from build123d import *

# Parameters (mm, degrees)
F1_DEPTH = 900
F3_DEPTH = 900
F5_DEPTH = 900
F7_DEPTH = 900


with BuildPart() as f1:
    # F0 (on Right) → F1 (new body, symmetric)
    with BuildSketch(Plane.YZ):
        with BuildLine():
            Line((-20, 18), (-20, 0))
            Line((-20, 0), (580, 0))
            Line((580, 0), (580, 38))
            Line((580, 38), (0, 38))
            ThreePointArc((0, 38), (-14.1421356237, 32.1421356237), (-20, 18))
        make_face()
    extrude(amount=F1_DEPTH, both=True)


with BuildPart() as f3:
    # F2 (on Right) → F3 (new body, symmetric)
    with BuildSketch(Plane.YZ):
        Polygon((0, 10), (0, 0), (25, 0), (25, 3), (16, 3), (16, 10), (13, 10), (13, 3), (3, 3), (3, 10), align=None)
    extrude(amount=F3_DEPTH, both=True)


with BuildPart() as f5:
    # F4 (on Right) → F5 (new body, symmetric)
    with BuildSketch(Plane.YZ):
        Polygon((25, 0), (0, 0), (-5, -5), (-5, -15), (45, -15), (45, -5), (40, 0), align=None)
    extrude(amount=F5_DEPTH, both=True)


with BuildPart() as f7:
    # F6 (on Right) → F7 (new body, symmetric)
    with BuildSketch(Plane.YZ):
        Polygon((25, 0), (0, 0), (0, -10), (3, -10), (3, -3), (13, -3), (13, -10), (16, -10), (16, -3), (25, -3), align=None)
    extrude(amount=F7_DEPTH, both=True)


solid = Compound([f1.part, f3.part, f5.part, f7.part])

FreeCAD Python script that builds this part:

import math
import FreeCAD as App
import Part
import Sketcher
from FreeCAD import Vector
Q = App.Units.Quantity

doc = App.newDocument("Part")
params = doc.addObject("Spreadsheet::Sheet", "Params")
for row, (alias, value) in enumerate([
    ("sketch1_radius", "20 mm"),
    ("sketch1_width", "600 mm"),
    ("sketch1_height", "18 mm"),
    ("pad1_length", "1800 mm"),
    ("sketch2_width", "25 mm"),
    ("sketch2_width2", "9 mm"),
    ("sketch2_width3", "3 mm"),
    ("pad2_length", "1800 mm"),
    ("sketch3_width", "50 mm"),
    ("sketch3_width2", "40 mm"),
    ("sketch3_height", "10 mm"),
    ("pad3_length", "1800 mm"),
    ("sketch4_width", "25 mm"),
    ("sketch4_width2", "3 mm"),
    ("sketch4_width3", "10 mm"),
    ("pad4_length", "1800 mm"),
], start=1):
    params.set(f"A{row}", alias)
    params.set(f"B{row}", "=" + value)
    params.setAlias(f"B{row}", alias)

body = doc.addObject("PartDesign::Body", "Body")

sketch1 = body.newObject("Sketcher::SketchObject", "Sketch")
sketch1.AttachmentSupport = (doc.getObject("YZ_Plane"), [""])
sketch1.MapMode = "FlatFace"
sketch1.addGeometry(Part.LineSegment(Vector(-20, 18, 0), Vector(-20, 0, 0)), False)
sketch1.addGeometry(Part.LineSegment(Vector(-20, 0, 0), Vector(580, 0, 0)), False)
sketch1.addGeometry(Part.LineSegment(Vector(580, 0, 0), Vector(580, 38, 0)), False)
sketch1.addGeometry(Part.LineSegment(Vector(580, 38, 0), Vector(0, 38, 0)), False)
sketch1.addGeometry(Part.ArcOfCircle(Part.Circle(Vector(0, 18, 0), Vector(0, 0, 1), 20), math.radians(90), math.radians(180)), False)
sketch1.addConstraint(Sketcher.Constraint("Coincident", 0, 2, 1, 1))
sketch1.addConstraint(Sketcher.Constraint("Coincident", 1, 2, 2, 1))
sketch1.addConstraint(Sketcher.Constraint("Coincident", 2, 2, 3, 1))
sketch1.addConstraint(Sketcher.Constraint("Tangent", 3, 2, 4, 1))
sketch1.addConstraint(Sketcher.Constraint("Tangent", 4, 2, 0, 1))
sketch1.addConstraint(Sketcher.Constraint("Vertical", 0))
sketch1.addConstraint(Sketcher.Constraint("Horizontal", 1))
sketch1.addConstraint(Sketcher.Constraint("Vertical", 2))
sketch1.addConstraint(Sketcher.Constraint("Horizontal", 3))
sketch1.addConstraint(Sketcher.Constraint("PointOnObject", 4, 3, -2))
sketch1.addConstraint(Sketcher.Constraint("PointOnObject", 0, 2, -1))
sketch1.addConstraint(Sketcher.Constraint("Radius", 4, Q("20 mm")))
sketch1.addConstraint(Sketcher.Constraint("DistanceX", 1, 1, 1, 2, Q("600 mm")))
sketch1.addConstraint(Sketcher.Constraint("DistanceY", 0, 2, 0, 1, Q("18 mm")))
sketch1.setExpression("Constraints[11]", "Params.sketch1_radius")
sketch1.setExpression("Constraints[12]", "Params.sketch1_width")
sketch1.setExpression("Constraints[13]", "Params.sketch1_height")
pad1 = body.newObject("PartDesign::Pad", "Pad")
pad1.Profile = sketch1
pad1.setExpression("Length", "Params.pad1_length")
pad1.Midplane = True
body2 = doc.addObject("PartDesign::Body", "Body001")

sketch2 = body2.newObject("Sketcher::SketchObject", "Sketch001")
sketch2.AttachmentSupport = (doc.getObject("YZ_Plane001"), [""])
sketch2.MapMode = "FlatFace"
sketch2.addGeometry(Part.LineSegment(Vector(0, 10, 0), Vector(0, 0, 0)), False)
sketch2.addGeometry(Part.LineSegment(Vector(0, 0, 0), Vector(25, 0, 0)), False)
sketch2.addGeometry(Part.LineSegment(Vector(25, 0, 0), Vector(25, 3, 0)), False)
sketch2.addGeometry(Part.LineSegment(Vector(25, 3, 0), Vector(16, 3, 0)), False)
sketch2.addGeometry(Part.LineSegment(Vector(16, 3, 0), Vector(16, 10, 0)), False)
sketch2.addGeometry(Part.LineSegment(Vector(16, 10, 0), Vector(13, 10, 0)), False)
sketch2.addGeometry(Part.LineSegment(Vector(13, 10, 0), Vector(13, 3, 0)), False)
sketch2.addGeometry(Part.LineSegment(Vector(13, 3, 0), Vector(3, 3, 0)), False)
sketch2.addGeometry(Part.LineSegment(Vector(3, 3, 0), Vector(3, 10, 0)), False)
sketch2.addGeometry(Part.LineSegment(Vector(3, 10, 0), Vector(0, 10, 0)), False)
sketch2.addConstraint(Sketcher.Constraint("Coincident", 0, 2, 1, 1))
sketch2.addConstraint(Sketcher.Constraint("Coincident", 1, 2, 2, 1))
sketch2.addConstraint(Sketcher.Constraint("Coincident", 2, 2, 3, 1))
sketch2.addConstraint(Sketcher.Constraint("Coincident", 3, 2, 4, 1))
sketch2.addConstraint(Sketcher.Constraint("Coincident", 4, 2, 5, 1))
sketch2.addConstraint(Sketcher.Constraint("Coincident", 5, 2, 6, 1))
sketch2.addConstraint(Sketcher.Constraint("Coincident", 6, 2, 7, 1))
sketch2.addConstraint(Sketcher.Constraint("Coincident", 7, 2, 8, 1))
sketch2.addConstraint(Sketcher.Constraint("Coincident", 8, 2, 9, 1))
sketch2.addConstraint(Sketcher.Constraint("Coincident", 9, 2, 0, 1))
sketch2.addConstraint(Sketcher.Constraint("Vertical", 0))
sketch2.addConstraint(Sketcher.Constraint("Horizontal", 1))
sketch2.addConstraint(Sketcher.Constraint("Vertical", 2))
sketch2.addConstraint(Sketcher.Constraint("Horizontal", 3))
sketch2.addConstraint(Sketcher.Constraint("Vertical", 4))
sketch2.addConstraint(Sketcher.Constraint("Horizontal", 5))
sketch2.addConstraint(Sketcher.Constraint("Vertical", 6))
sketch2.addConstraint(Sketcher.Constraint("Horizontal", 7))
sketch2.addConstraint(Sketcher.Constraint("Vertical", 8))
sketch2.addConstraint(Sketcher.Constraint("Horizontal", 9))
sketch2.addConstraint(Sketcher.Constraint("Coincident", 0, 2, -1, 1))
sketch2.addConstraint(Sketcher.Constraint("Horizontal", 3, 2, 6, 2))
sketch2.addConstraint(Sketcher.Constraint("Horizontal", 5, 2, 8, 2))
sketch2.addConstraint(Sketcher.Constraint("Equal", 5, 9))
sketch2.addConstraint(Sketcher.Constraint("Equal", 7, 0))
sketch2.addConstraint(Sketcher.Constraint("Equal", 9, 2))
sketch2.addConstraint(Sketcher.Constraint("DistanceX", 1, 1, 1, 2, Q("25 mm")))
sketch2.addConstraint(Sketcher.Constraint("DistanceX", 3, 2, 3, 1, Q("9 mm")))
sketch2.addConstraint(Sketcher.Constraint("DistanceX", 5, 2, 5, 1, Q("3 mm")))
sketch2.setExpression("Constraints[26]", "Params.sketch2_width")
sketch2.setExpression("Constraints[27]", "Params.sketch2_width2")
sketch2.setExpression("Constraints[28]", "Params.sketch2_width3")
pad2 = body2.newObject("PartDesign::Pad", "Pad001")
pad2.Profile = sketch2
pad2.setExpression("Length", "Params.pad2_length")
pad2.Midplane = True
body3 = doc.addObject("PartDesign::Body", "Body002")

sketch3 = body3.newObject("Sketcher::SketchObject", "Sketch002")
sketch3.AttachmentSupport = (doc.getObject("YZ_Plane002"), [""])
sketch3.MapMode = "FlatFace"
sketch3.addGeometry(Part.LineSegment(Vector(0, 0, 0), Vector(-5, -5, 0)), False)
sketch3.addGeometry(Part.LineSegment(Vector(-5, -5, 0), Vector(-5, -15, 0)), False)
sketch3.addGeometry(Part.LineSegment(Vector(-5, -15, 0), Vector(45, -15, 0)), False)
sketch3.addGeometry(Part.LineSegment(Vector(45, -15, 0), Vector(45, -5, 0)), False)
sketch3.addGeometry(Part.LineSegment(Vector(45, -5, 0), Vector(40, 0, 0)), False)
sketch3.addGeometry(Part.LineSegment(Vector(40, 0, 0), Vector(0, 0, 0)), False)
sketch3.addConstraint(Sketcher.Constraint("Coincident", 0, 2, 1, 1))
sketch3.addConstraint(Sketcher.Constraint("Coincident", 1, 2, 2, 1))
sketch3.addConstraint(Sketcher.Constraint("Coincident", 2, 2, 3, 1))
sketch3.addConstraint(Sketcher.Constraint("Coincident", 3, 2, 4, 1))
sketch3.addConstraint(Sketcher.Constraint("Coincident", 4, 2, 5, 1))
sketch3.addConstraint(Sketcher.Constraint("Coincident", 5, 2, 0, 1))
sketch3.addConstraint(Sketcher.Constraint("Vertical", 1))
sketch3.addConstraint(Sketcher.Constraint("Horizontal", 2))
sketch3.addConstraint(Sketcher.Constraint("Vertical", 3))
sketch3.addConstraint(Sketcher.Constraint("Horizontal", 5))
sketch3.addConstraint(Sketcher.Constraint("Coincident", 5, 2, -1, 1))
sketch3.addConstraint(Sketcher.Constraint("Perpendicular", 0, 4))
sketch3.addConstraint(Sketcher.Constraint("Horizontal", 0, 2, 3, 2))
sketch3.addConstraint(Sketcher.Constraint("Equal", 0, 4))
sketch3.addConstraint(Sketcher.Constraint("DistanceX", 2, 1, 2, 2, Q("50 mm")))
sketch3.addConstraint(Sketcher.Constraint("DistanceX", 5, 2, 5, 1, Q("40 mm")))
sketch3.addConstraint(Sketcher.Constraint("DistanceY", 1, 2, 1, 1, Q("10 mm")))
sketch3.setExpression("Constraints[14]", "Params.sketch3_width")
sketch3.setExpression("Constraints[15]", "Params.sketch3_width2")
sketch3.setExpression("Constraints[16]", "Params.sketch3_height")
pad3 = body3.newObject("PartDesign::Pad", "Pad002")
pad3.Profile = sketch3
pad3.setExpression("Length", "Params.pad3_length")
pad3.Midplane = True
body4 = doc.addObject("PartDesign::Body", "Body003")

sketch4 = body4.newObject("Sketcher::SketchObject", "Sketch003")
sketch4.AttachmentSupport = (doc.getObject("YZ_Plane003"), [""])
sketch4.MapMode = "FlatFace"
sketch4.addGeometry(Part.LineSegment(Vector(25, 0, 0), Vector(0, 0, 0)), False)
sketch4.addGeometry(Part.LineSegment(Vector(0, 0, 0), Vector(0, -10, 0)), False)
sketch4.addGeometry(Part.LineSegment(Vector(0, -10, 0), Vector(3, -10, 0)), False)
sketch4.addGeometry(Part.LineSegment(Vector(3, -10, 0), Vector(3, -3, 0)), False)
sketch4.addGeometry(Part.LineSegment(Vector(3, -3, 0), Vector(13, -3, 0)), False)
sketch4.addGeometry(Part.LineSegment(Vector(13, -3, 0), Vector(13, -10, 0)), False)
sketch4.addGeometry(Part.LineSegment(Vector(13, -10, 0), Vector(16, -10, 0)), False)
sketch4.addGeometry(Part.LineSegment(Vector(16, -10, 0), Vector(16, -3, 0)), False)
sketch4.addGeometry(Part.LineSegment(Vector(16, -3, 0), Vector(25, -3, 0)), False)
sketch4.addGeometry(Part.LineSegment(Vector(25, -3, 0), Vector(25, 0, 0)), False)
sketch4.addConstraint(Sketcher.Constraint("Coincident", 0, 2, 1, 1))
sketch4.addConstraint(Sketcher.Constraint("Coincident", 1, 2, 2, 1))
sketch4.addConstraint(Sketcher.Constraint("Coincident", 2, 2, 3, 1))
sketch4.addConstraint(Sketcher.Constraint("Coincident", 3, 2, 4, 1))
sketch4.addConstraint(Sketcher.Constraint("Coincident", 4, 2, 5, 1))
sketch4.addConstraint(Sketcher.Constraint("Coincident", 5, 2, 6, 1))
sketch4.addConstraint(Sketcher.Constraint("Coincident", 6, 2, 7, 1))
sketch4.addConstraint(Sketcher.Constraint("Coincident", 7, 2, 8, 1))
sketch4.addConstraint(Sketcher.Constraint("Coincident", 8, 2, 9, 1))
sketch4.addConstraint(Sketcher.Constraint("Coincident", 9, 2, 0, 1))
sketch4.addConstraint(Sketcher.Constraint("Horizontal", 0))
sketch4.addConstraint(Sketcher.Constraint("Vertical", 1))
sketch4.addConstraint(Sketcher.Constraint("Horizontal", 2))
sketch4.addConstraint(Sketcher.Constraint("Vertical", 3))
sketch4.addConstraint(Sketcher.Constraint("Horizontal", 4))
sketch4.addConstraint(Sketcher.Constraint("Vertical", 5))
sketch4.addConstraint(Sketcher.Constraint("Horizontal", 6))
sketch4.addConstraint(Sketcher.Constraint("Vertical", 7))
sketch4.addConstraint(Sketcher.Constraint("Horizontal", 8))
sketch4.addConstraint(Sketcher.Constraint("Vertical", 9))
sketch4.addConstraint(Sketcher.Constraint("Coincident", 0, 2, -1, 1))
sketch4.addConstraint(Sketcher.Constraint("Horizontal", 2, 2, 5, 2))
sketch4.addConstraint(Sketcher.Constraint("Horizontal", 4, 2, 7, 2))
sketch4.addConstraint(Sketcher.Constraint("Equal", 2, 6))
sketch4.addConstraint(Sketcher.Constraint("Equal", 4, 1))
sketch4.addConstraint(Sketcher.Constraint("Equal", 6, 9))
sketch4.addConstraint(Sketcher.Constraint("DistanceX", 0, 2, 0, 1, Q("25 mm")))
sketch4.addConstraint(Sketcher.Constraint("DistanceX", 2, 1, 2, 2, Q("3 mm")))
sketch4.addConstraint(Sketcher.Constraint("DistanceX", 4, 1, 4, 2, Q("10 mm")))
sketch4.setExpression("Constraints[26]", "Params.sketch4_width")
sketch4.setExpression("Constraints[27]", "Params.sketch4_width2")
sketch4.setExpression("Constraints[28]", "Params.sketch4_width3")
pad4 = body4.newObject("PartDesign::Pad", "Pad003")
pad4.Profile = sketch4
pad4.setExpression("Length", "Params.pad4_length")
pad4.Midplane = True

doc.recompute()
